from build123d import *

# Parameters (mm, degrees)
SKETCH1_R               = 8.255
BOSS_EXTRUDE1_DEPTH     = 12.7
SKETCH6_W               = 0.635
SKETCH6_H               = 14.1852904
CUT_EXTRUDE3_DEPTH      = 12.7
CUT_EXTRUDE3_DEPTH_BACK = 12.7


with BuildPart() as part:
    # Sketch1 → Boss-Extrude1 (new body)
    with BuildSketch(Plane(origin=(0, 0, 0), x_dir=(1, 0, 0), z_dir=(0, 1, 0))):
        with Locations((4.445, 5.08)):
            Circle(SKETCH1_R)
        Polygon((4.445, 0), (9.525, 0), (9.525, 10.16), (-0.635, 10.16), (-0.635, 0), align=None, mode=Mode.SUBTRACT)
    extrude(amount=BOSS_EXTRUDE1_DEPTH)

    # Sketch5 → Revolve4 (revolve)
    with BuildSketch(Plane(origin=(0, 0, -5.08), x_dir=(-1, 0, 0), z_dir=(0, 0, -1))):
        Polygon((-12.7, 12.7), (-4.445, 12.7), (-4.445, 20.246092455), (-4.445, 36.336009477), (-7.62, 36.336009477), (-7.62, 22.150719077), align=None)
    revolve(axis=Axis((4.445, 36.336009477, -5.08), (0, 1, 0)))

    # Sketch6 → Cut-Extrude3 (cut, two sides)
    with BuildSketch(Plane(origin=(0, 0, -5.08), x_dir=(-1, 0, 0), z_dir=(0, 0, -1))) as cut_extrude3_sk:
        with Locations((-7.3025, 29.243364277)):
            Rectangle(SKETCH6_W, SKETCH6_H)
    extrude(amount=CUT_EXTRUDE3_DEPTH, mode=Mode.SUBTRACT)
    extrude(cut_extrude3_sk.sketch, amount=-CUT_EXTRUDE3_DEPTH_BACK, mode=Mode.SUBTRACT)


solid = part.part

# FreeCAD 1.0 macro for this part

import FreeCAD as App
import Part
import Sketcher

V = App.Vector
Q = App.Units.Quantity


def add_polygon(sketch, points):
    """Adds a closed chain of lines whose ends are joined by coincident constraints."""
    first, n = sketch.GeometryCount, len(points)
    for a, b in zip(points, points[1:] + points[:1]):
        sketch.addGeometry(Part.LineSegment(App.Vector(*a, 0), App.Vector(*b, 0)), False)
    for i in range(n):
        sketch.addConstraint(Sketcher.Constraint("Coincident", first + i, 2, first + (i + 1) % n, 1))

doc = App.newDocument("Part")
body = doc.addObject("PartDesign::Body", "Body")

# Sketch on XZ plane
sketch1 = body.newObject("Sketcher::SketchObject", "Sketch")
sketch1.AttachmentSupport = (doc.getObject("XZ_Plane"), [""])
sketch1.MapMode = "FlatFace"
sketch1.addGeometry(Part.Circle(V(4.445, -5.08, 0), V(0, 0, 1), 8.255), False)  # 0
add_polygon(sketch1, [(9.525, 0), (-0.635, 0), (-0.635, -10.16), (9.525, -10.16)])  # lines 1-4
sketch1.addConstraint(Sketcher.Constraint("Horizontal", 1))
sketch1.addConstraint(Sketcher.Constraint("Vertical", 2))
sketch1.addConstraint(Sketcher.Constraint("Horizontal", 3))
sketch1.addConstraint(Sketcher.Constraint("Vertical", 4))
sketch1.addConstraint(Sketcher.Constraint("PointOnObject", 1, 2, -1))
sketch1.addConstraint(Sketcher.Constraint("Equal", 3, 2))
sketch1.addConstraint(Sketcher.Constraint("Diameter", 0, Q("0.65 in")))
sketch1.addConstraint(Sketcher.Constraint("DistanceX", 1, 2, 1, 1, Q("0.4 in")))
sketch1.addConstraint(Sketcher.Constraint("DistanceY", 0, 3, -1, 1, Q("0.2 in")))
sketch1.addConstraint(Sketcher.Constraint("DistanceX", 1, 2, 0, 3, Q("0.2 in")))
sketch1.addConstraint(Sketcher.Constraint("DistanceX", -1, 1, 0, 3, Q("0.175 in")))
pad1 = body.newObject("PartDesign::Pad", "Pad")
pad1.Profile = sketch1
pad1.Length = Q("0.5 in")
pad1.Reversed = True

# Sketch on XY plane
sketch2 = body.newObject("Sketcher::SketchObject", "Sketch001")
sketch2.AttachmentSupport = (doc.getObject("XY_Plane"), [""])
sketch2.MapMode = "FlatFace"
sketch2.AttachmentOffset = App.Placement(V(0, 0, -0.2 * 25.4), App.Rotation())
add_polygon(sketch2, [(12.7, 12.7), (4.445, 12.7), (4.445, 36.336009), (7.62, 36.336009), (7.62, 22.150719)])  # lines 0-4
sketch2.addGeometry(Part.LineSegment(V(4.445, 12.7, 0), V(4.445, 36.336009, 0)), True)  # axis
sketch2.addConstraint(Sketcher.Constraint("Horizontal", 0))
sketch2.addConstraint(Sketcher.Constraint("Vertical", 1))
sketch2.addConstraint(Sketcher.Constraint("Horizontal", 2))
sketch2.addConstraint(Sketcher.Constraint("Vertical", 3))
sketch2.addConstraint(Sketcher.Constraint("Vertical", 5))
sketch2.addConstraint(Sketcher.Constraint("Coincident", 5, 1, 0, 2))
sketch2.addConstraint(Sketcher.Constraint("Horizontal", 2, 2, 5, 2))
sketch2.addConstraint(Sketcher.Constraint("DistanceY", -1, 1, 0, 2, Q("0.5 in")))
sketch2.addConstraint(Sketcher.Constraint("DistanceX", -1, 1, 2, 2, Q("0.3 in")))
sketch2.addConstraint(Sketcher.Constraint("DistanceX", -1, 1, 4, 2, Q("0.5 in")))
sketch2.addConstraint(Sketcher.Constraint("DistanceX", 0, 2, 0, 1, Q("0.325 in")))
sketch2.addConstraint(Sketcher.Constraint("DistanceY", 1, 1, 1, 2, 23.636009))
sketch2.addConstraint(Sketcher.Constraint("DistanceY", 3, 2, 3, 1, 14.18529))
revolution = body.newObject("PartDesign::Revolution", "Revolution")
revolution.Profile = sketch2
revolution.ReferenceAxis = (sketch2, ["Axis0"])
revolution.Angle = 360

# Sketch on XY plane
sketch3 = body.newObject("Sketcher::SketchObject", "Sketch002")
sketch3.AttachmentSupport = (doc.getObject("XY_Plane"), [""])
sketch3.MapMode = "FlatFace"
sketch3.AttachmentOffset = App.Placement(V(0, 0, -0.2 * 25.4), App.Rotation())
add_polygon(sketch3, [(7.62, 36.336009), (7.62, 22.150719), (6.985, 22.150719), (6.985, 36.336009)])  # lines 0-3
sketch3.addConstraint(Sketcher.Constraint("Vertical", 0))
sketch3.addConstraint(Sketcher.Constraint("Horizontal", 1))
sketch3.addConstraint(Sketcher.Constraint("Vertical", 2))
sketch3.addConstraint(Sketcher.Constraint("Horizontal", 3))
sketch3.addConstraint(Sketcher.Constraint("DistanceX", -1, 1, 0, 2, Q("0.3 in")))
sketch3.addConstraint(Sketcher.Constraint("DistanceX", 1, 2, 1, 1, Q("0.025 in")))
sketch3.addConstraint(Sketcher.Constraint("DistanceY", 0, 2, 0, 1, 14.18529))
sketch3.addConstraint(Sketcher.Constraint("DistanceY", -1, 1, 0, 2, 22.150719))
pocket1 = body.newObject("PartDesign::Pocket", "Pocket")
pocket1.Profile = sketch3
pocket1.Type = "ThroughAll"
pocket1.Midplane = True

doc.recompute()
